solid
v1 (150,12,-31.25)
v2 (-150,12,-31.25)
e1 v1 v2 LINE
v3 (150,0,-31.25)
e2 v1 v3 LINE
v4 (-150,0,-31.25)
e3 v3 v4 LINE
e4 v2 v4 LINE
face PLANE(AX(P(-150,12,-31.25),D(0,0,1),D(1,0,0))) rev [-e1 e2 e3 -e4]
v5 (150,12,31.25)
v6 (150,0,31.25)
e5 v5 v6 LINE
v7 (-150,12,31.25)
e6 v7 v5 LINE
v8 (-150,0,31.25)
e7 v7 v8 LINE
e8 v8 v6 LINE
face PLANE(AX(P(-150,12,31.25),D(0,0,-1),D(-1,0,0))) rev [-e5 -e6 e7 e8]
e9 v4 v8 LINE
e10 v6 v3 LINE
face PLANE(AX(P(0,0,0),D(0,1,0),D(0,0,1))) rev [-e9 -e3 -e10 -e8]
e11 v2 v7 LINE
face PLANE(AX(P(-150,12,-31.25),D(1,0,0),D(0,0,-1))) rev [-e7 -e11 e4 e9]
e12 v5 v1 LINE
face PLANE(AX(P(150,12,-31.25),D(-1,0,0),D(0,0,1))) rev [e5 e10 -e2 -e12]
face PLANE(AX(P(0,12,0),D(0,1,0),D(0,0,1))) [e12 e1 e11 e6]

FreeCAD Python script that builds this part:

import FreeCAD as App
import Part
import Sketcher

V = App.Vector
Q = App.Units.Quantity

doc = App.newDocument("Part")
body = doc.addObject("PartDesign::Body", "Body")

sketch1 = body.newObject("Sketcher::SketchObject", "Sketch")
sketch1.AttachmentSupport = (doc.getObject("XZ_Plane"), [""])
sketch1.MapMode = "FlatFace"
sketch1.addGeometry([
    Part.LineSegment(V(-150, -31.25, 0), V(-150, 31.25, 0)),
    Part.LineSegment(V(-150, 31.25, 0), V(150, 31.25, 0)),
    Part.LineSegment(V(150, 31.25, 0), V(150, -31.25, 0)),
    Part.LineSegment(V(150, -31.25, 0), V(-150, -31.25, 0)),
], False)
sketch1.addConstraint([
    Sketcher.Constraint("Coincident", 0, 2, 1, 1),
    Sketcher.Constraint("Coincident", 1, 2, 2, 1),
    Sketcher.Constraint("Coincident", 2, 2, 3, 1),
    Sketcher.Constraint("Coincident", 3, 2, 0, 1),
    Sketcher.Constraint("Vertical", 0),
    Sketcher.Constraint("Horizontal", 1),
    Sketcher.Constraint("Vertical", 2),
    Sketcher.Constraint("Horizontal", 3),
    Sketcher.Constraint("Symmetric", 0, 2, 2, 2, -1, 1),
    Sketcher.Constraint("DistanceX", 1, 1, 1, 2, Q("300 mm")),
    Sketcher.Constraint("DistanceY", 0, 1, 0, 2, Q("62.5 mm")),
])
pad1 = body.newObject("PartDesign::Pad", "Pad")
pad1.Profile = sketch1
pad1.Length = 12
pad1.Reversed = True

doc.recompute()
